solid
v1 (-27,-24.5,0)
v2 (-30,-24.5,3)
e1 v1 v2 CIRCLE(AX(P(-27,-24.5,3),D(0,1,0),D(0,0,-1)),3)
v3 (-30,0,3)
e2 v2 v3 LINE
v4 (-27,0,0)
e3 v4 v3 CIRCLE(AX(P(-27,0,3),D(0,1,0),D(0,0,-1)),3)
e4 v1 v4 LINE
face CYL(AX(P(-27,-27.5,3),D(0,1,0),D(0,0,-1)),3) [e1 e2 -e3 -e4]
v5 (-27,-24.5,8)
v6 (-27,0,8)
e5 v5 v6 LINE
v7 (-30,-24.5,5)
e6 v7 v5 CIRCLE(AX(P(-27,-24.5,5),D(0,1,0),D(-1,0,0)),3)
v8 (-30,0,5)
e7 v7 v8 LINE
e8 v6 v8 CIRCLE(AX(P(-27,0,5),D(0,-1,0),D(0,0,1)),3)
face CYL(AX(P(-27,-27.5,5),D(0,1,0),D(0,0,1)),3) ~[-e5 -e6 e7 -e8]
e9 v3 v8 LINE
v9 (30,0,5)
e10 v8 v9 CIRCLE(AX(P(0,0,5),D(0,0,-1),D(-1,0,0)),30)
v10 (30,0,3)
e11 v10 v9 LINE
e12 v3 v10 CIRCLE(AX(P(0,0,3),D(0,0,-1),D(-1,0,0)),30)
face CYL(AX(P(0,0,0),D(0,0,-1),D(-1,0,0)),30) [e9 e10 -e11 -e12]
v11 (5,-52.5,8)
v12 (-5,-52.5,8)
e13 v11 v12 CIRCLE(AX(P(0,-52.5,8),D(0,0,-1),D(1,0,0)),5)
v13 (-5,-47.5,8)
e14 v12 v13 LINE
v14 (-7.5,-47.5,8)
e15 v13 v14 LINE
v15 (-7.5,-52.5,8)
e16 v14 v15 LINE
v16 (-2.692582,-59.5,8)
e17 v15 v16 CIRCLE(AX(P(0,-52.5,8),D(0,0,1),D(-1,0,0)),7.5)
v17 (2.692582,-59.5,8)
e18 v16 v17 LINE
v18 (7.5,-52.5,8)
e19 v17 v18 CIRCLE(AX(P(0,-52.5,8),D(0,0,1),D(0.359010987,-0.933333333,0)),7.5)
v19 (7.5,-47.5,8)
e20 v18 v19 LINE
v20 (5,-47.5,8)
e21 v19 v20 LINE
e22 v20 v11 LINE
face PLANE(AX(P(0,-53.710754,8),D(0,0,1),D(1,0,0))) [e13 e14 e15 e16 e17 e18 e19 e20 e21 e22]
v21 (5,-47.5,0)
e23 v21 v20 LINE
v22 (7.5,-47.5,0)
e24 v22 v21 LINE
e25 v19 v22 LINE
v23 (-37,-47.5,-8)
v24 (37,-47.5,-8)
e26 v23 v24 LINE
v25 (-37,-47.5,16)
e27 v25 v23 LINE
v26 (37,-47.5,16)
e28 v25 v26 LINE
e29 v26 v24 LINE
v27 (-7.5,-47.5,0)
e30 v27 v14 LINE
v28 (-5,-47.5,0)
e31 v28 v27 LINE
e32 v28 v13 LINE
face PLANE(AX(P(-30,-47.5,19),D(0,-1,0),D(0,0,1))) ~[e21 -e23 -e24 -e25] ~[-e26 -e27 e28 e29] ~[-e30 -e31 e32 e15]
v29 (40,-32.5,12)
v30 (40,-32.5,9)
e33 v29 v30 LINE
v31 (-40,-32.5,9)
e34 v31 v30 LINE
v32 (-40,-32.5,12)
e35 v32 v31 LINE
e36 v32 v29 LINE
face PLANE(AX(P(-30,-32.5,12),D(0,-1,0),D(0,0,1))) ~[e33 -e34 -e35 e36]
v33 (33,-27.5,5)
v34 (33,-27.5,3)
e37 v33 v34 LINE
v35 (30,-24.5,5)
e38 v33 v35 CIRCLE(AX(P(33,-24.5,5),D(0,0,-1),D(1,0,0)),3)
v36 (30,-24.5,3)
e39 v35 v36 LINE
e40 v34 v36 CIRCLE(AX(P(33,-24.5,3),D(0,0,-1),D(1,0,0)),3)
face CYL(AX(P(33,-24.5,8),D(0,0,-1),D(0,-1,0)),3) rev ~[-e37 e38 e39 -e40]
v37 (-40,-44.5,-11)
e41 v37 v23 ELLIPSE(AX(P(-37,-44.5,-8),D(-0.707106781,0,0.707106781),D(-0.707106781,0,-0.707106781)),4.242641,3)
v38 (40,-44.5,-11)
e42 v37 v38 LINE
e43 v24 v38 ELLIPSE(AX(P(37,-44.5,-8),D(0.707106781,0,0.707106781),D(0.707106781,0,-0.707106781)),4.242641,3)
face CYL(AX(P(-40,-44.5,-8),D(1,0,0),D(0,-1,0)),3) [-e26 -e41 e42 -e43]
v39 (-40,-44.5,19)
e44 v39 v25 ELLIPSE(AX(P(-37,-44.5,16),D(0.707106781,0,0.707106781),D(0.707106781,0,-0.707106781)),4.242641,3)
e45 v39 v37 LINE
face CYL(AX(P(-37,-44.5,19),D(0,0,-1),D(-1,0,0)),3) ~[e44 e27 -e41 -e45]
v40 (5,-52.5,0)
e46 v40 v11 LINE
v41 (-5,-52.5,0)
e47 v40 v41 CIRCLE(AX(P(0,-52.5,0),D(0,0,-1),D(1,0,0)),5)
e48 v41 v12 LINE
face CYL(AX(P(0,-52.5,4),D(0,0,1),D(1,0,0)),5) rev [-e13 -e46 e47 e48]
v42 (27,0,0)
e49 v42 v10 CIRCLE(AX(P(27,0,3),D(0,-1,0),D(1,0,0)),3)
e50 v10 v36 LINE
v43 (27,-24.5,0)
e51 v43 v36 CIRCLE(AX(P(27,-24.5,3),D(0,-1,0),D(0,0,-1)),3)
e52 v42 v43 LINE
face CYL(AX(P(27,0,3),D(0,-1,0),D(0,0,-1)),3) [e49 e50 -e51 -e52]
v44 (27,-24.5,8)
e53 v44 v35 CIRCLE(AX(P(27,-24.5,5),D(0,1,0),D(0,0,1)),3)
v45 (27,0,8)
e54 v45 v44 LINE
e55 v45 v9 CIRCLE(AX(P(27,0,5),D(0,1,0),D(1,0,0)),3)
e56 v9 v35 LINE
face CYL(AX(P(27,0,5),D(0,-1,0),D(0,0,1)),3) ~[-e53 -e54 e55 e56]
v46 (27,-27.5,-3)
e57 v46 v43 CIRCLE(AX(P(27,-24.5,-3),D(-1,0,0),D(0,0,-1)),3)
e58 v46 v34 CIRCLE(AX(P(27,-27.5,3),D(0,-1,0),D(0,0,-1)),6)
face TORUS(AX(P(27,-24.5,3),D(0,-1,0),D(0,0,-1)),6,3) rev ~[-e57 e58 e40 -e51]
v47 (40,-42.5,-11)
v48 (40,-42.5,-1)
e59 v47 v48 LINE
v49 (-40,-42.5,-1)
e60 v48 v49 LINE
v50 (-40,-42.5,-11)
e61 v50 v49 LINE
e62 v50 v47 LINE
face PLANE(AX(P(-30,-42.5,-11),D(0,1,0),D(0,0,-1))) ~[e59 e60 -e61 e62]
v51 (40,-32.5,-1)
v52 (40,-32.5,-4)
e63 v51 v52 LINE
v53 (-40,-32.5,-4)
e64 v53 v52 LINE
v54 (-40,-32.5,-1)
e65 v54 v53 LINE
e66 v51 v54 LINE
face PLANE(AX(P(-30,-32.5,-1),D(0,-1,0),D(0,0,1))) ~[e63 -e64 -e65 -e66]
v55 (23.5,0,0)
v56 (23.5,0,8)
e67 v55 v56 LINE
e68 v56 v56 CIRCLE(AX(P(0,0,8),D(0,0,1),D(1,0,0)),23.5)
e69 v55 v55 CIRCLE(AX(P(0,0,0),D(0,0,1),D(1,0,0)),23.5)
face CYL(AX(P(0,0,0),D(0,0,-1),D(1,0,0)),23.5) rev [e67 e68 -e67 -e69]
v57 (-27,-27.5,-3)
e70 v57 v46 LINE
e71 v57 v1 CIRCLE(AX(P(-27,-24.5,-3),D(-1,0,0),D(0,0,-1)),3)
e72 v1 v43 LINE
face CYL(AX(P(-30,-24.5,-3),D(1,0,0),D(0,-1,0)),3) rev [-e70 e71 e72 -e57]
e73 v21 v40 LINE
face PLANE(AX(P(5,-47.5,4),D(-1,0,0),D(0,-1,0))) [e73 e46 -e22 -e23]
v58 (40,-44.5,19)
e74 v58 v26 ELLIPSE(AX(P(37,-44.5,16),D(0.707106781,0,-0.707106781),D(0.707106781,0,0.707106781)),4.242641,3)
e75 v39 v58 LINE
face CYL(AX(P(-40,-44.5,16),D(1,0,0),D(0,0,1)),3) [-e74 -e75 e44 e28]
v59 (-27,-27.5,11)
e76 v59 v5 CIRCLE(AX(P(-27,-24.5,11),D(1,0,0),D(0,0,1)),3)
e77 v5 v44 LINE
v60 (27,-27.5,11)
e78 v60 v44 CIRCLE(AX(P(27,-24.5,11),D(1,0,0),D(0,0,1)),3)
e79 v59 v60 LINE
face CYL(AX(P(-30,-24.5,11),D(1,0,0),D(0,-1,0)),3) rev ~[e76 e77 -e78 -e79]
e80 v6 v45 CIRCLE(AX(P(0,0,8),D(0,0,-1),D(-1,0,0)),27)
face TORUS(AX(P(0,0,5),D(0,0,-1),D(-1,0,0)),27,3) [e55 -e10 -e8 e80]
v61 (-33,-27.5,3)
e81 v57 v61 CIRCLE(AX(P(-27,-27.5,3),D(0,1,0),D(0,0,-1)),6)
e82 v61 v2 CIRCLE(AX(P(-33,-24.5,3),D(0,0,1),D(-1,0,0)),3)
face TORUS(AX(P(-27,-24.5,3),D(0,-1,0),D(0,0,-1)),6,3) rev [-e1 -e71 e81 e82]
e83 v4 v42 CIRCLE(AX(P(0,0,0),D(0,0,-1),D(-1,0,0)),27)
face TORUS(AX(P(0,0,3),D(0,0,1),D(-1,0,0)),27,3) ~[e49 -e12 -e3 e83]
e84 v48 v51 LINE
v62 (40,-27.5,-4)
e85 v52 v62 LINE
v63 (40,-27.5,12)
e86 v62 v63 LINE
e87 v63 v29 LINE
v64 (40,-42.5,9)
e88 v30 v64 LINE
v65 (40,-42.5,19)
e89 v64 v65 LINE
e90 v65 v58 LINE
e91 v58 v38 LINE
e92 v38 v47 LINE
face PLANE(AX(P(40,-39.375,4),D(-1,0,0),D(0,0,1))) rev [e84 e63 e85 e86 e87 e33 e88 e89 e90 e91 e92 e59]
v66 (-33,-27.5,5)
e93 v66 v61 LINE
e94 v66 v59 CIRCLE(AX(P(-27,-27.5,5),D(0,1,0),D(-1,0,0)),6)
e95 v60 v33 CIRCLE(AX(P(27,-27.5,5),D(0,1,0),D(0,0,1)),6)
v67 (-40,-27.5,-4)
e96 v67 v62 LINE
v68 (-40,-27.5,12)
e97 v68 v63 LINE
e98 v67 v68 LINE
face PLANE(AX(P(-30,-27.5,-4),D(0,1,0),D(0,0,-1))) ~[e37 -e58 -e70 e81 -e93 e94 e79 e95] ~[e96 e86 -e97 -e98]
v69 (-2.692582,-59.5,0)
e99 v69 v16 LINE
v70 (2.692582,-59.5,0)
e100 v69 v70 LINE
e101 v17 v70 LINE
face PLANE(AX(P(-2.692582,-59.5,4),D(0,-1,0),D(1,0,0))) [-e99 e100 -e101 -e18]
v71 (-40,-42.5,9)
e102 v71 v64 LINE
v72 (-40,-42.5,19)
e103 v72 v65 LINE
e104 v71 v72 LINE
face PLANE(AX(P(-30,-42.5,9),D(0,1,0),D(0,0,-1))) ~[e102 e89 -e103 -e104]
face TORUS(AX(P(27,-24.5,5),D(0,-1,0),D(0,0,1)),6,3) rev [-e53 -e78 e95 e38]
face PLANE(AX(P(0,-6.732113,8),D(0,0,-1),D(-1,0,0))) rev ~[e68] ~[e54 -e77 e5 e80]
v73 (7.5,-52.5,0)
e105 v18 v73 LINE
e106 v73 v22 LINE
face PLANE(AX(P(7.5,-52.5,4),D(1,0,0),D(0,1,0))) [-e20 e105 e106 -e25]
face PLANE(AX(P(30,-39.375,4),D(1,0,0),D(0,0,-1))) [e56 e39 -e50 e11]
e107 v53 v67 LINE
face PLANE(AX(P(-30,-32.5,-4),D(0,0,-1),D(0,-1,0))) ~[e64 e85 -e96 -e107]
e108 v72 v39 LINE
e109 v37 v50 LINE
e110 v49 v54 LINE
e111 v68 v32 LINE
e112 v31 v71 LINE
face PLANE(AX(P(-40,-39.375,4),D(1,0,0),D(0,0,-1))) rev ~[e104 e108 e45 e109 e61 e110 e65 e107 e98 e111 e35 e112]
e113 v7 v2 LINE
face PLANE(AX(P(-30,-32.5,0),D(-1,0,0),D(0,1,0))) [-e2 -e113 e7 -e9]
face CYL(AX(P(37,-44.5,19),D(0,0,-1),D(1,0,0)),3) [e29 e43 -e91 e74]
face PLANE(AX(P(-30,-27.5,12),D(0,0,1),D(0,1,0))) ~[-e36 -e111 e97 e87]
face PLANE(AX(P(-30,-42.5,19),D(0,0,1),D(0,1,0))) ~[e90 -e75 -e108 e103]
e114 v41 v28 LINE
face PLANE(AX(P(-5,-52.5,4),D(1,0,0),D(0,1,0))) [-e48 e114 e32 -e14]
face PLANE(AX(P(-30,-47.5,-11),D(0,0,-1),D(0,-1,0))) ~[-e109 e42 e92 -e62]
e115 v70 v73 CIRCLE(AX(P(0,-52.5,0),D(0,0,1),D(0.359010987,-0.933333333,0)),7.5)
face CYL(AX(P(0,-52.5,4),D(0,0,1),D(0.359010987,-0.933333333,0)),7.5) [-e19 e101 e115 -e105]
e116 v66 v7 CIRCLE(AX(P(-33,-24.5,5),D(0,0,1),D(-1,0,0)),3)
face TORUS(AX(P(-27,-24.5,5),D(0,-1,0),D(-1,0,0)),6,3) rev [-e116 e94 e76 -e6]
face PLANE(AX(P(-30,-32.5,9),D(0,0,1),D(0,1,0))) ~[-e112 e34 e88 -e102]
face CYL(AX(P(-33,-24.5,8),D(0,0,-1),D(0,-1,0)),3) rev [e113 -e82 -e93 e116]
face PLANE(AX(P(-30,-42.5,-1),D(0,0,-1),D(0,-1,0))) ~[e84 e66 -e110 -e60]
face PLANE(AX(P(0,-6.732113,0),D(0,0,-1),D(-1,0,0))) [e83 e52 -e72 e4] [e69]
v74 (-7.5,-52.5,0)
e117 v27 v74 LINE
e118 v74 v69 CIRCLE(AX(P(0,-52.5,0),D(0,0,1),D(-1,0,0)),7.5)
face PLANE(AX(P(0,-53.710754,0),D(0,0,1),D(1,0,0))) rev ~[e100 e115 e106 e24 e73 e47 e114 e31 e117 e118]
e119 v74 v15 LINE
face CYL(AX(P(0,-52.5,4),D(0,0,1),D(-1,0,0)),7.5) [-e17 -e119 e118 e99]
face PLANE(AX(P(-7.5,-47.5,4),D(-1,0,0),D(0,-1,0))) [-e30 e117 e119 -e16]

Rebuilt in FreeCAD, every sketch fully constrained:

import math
import FreeCAD as App
import Part
import Sketcher

V = App.Vector
Q = App.Units.Quantity


def edges_at(feature, points):
    """Names of the edges that pass closest to the given points."""
    edges = feature.Shape.Edges
    near = lambda p: min(range(len(edges)), key=lambda i: edges[i].distToShape(Part.Vertex(*p))[0])
    return sorted({f"Edge{near(p) + 1}" for p in points})

doc = App.newDocument("Part")
params = doc.addObject("Spreadsheet::Sheet", "Params")
for row, (alias, value) in enumerate([
    ("sketch1_diameter", "47 mm"),
    ("sketch1_radius", "30 mm"),
    ("sketch1_height", "32.5 mm"),
    ("pad1_length", "8 mm"),
    ("sketch2_width", "5 mm"),
    ("sketch2_width2", "10 mm"),
    ("sketch2_height", "3 mm"),
    ("sketch2_height2", "16 mm"),
    ("pad2_length", "70 mm"),
    ("fillet_radius", "3 mm"),
    ("fillet2_radius", "3 mm"),
    ("sketch3_radius", "5 mm"),
    ("sketch3_radius2", "7.5 mm"),
    ("sketch3_height", "5 mm"),
    ("pad3_length", "8 mm"),
], start=1):
    params.set(f"A{row}", alias)
    params.set(f"B{row}", "=" + value)
    params.setAlias(f"B{row}", alias)

body = doc.addObject("PartDesign::Body", "Body")

# Sketch on XY plane
sketch1 = body.newObject("Sketcher::SketchObject", "Sketch")
sketch1.AttachmentSupport = (doc.getObject("XY_Plane"), [""])
sketch1.MapMode = "FlatFace"
sketch1.addGeometry(Part.LineSegment(V(-30, -32, 0), V(30, -32, 0)), False)
sketch1.addGeometry(Part.LineSegment(V(30, -32, 0), V(30, 0, 0)), False)
sketch1.addGeometry(Part.ArcOfCircle(Part.Circle(V(0, 0, 0), V(0, 0, 1), 30), math.radians(0), math.radians(180)), False)
sketch1.addGeometry(Part.LineSegment(V(-30, 0, 0), V(-30, -32, 0)), False)
sketch1.addGeometry(Part.Circle(V(0, 0, 0), V(0, 0, 1), 24), False)
sketch1.addConstraint(Sketcher.Constraint("Coincident", 0, 2, 1, 1))
sketch1.addConstraint(Sketcher.Constraint("Tangent", 1, 2, 2, 1))
sketch1.addConstraint(Sketcher.Constraint("Tangent", 2, 2, 3, 1))
sketch1.addConstraint(Sketcher.Constraint("Coincident", 3, 2, 0, 1))
sketch1.addConstraint(Sketcher.Constraint("Horizontal", 0))
sketch1.addConstraint(Sketcher.Constraint("Vertical", 1))
sketch1.addConstraint(Sketcher.Constraint("Vertical", 3))
sketch1.addConstraint(Sketcher.Constraint("Coincident", 2, 3, -1, 1))
sketch1.addConstraint(Sketcher.Constraint("Coincident", 4, 3, -1, 1))
sketch1.addConstraint(Sketcher.Constraint("Diameter", 4, Q("47 mm")))
sketch1.addConstraint(Sketcher.Constraint("Radius", 2, Q("30 mm")))
sketch1.addConstraint(Sketcher.Constraint("DistanceY", 1, 1, 1, 2, Q("32.5 mm")))
sketch1.setExpression("Constraints[9]", "Params.sketch1_diameter")
sketch1.setExpression("Constraints[10]", "Params.sketch1_radius")
sketch1.setExpression("Constraints[11]", "Params.sketch1_height")
pad1 = body.newObject("PartDesign::Pad", "Pad")
pad1.Profile = sketch1
pad1.setExpression("Length", "Params.pad1_length")

# Sketch on YZ plane
sketch2 = body.newObject("Sketcher::SketchObject", "Sketch001")
sketch2.AttachmentSupport = (doc.getObject("YZ_Plane"), [""])
sketch2.MapMode = "FlatFace"
sketch2.AttachmentOffset = App.Placement(V(0, 0, 30), App.Rotation())
sketch2.addGeometry(Part.LineSegment(V(-32.5, -1, 0), V(-32.5, -4, 0)), False)
sketch2.addGeometry(Part.LineSegment(V(-32.5, -4, 0), V(-27.5, -4, 0)), False)
sketch2.addGeometry(Part.LineSegment(V(-27.5, -4, 0), V(-27.5, 12, 0)), False)
sketch2.addGeometry(Part.LineSegment(V(-27.5, 12, 0), V(-32.5, 12, 0)), False)
sketch2.addGeometry(Part.LineSegment(V(-32.5, 12, 0), V(-32.5, 9, 0)), False)
sketch2.addGeometry(Part.LineSegment(V(-32.5, 9, 0), V(-42.5, 9, 0)), False)
sketch2.addGeometry(Part.LineSegment(V(-42.5, 9, 0), V(-42.5, 19, 0)), False)
sketch2.addGeometry(Part.LineSegment(V(-42.5, 19, 0), V(-47.5, 19, 0)), False)
sketch2.addGeometry(Part.LineSegment(V(-47.5, 19, 0), V(-47.5, -11, 0)), False)
sketch2.addGeometry(Part.LineSegment(V(-47.5, -11, 0), V(-42.5, -11, 0)), False)
sketch2.addGeometry(Part.LineSegment(V(-42.5, -11, 0), V(-42.5, -1, 0)), False)
sketch2.addGeometry(Part.LineSegment(V(-42.5, -1, 0), V(-32.5, -1, 0)), False)
sketch2.addConstraint(Sketcher.Constraint("Coincident", 0, 2, 1, 1))
sketch2.addConstraint(Sketcher.Constraint("Coincident", 1, 2, 2, 1))
sketch2.addConstraint(Sketcher.Constraint("Coincident", 2, 2, 3, 1))
sketch2.addConstraint(Sketcher.Constraint("Coincident", 3, 2, 4, 1))
sketch2.addConstraint(Sketcher.Constraint("Coincident", 4, 2, 5, 1))
sketch2.addConstraint(Sketcher.Constraint("Coincident", 5, 2, 6, 1))
sketch2.addConstraint(Sketcher.Constraint("Coincident", 6, 2, 7, 1))
sketch2.addConstraint(Sketcher.Constraint("Coincident", 7, 2, 8, 1))
sketch2.addConstraint(Sketcher.Constraint("Coincident", 8, 2, 9, 1))
sketch2.addConstraint(Sketcher.Constraint("Coincident", 9, 2, 10, 1))
sketch2.addConstraint(Sketcher.Constraint("Coincident", 10, 2, 11, 1))
sketch2.addConstraint(Sketcher.Constraint("Coincident", 11, 2, 0, 1))
sketch2.addConstraint(Sketcher.Constraint("Vertical", 0))
sketch2.addConstraint(Sketcher.Constraint("Horizontal", 1))
sketch2.addConstraint(Sketcher.Constraint("Vertical", 2))
sketch2.addConstraint(Sketcher.Constraint("Horizontal", 3))
sketch2.addConstraint(Sketcher.Constraint("Vertical", 4))
sketch2.addConstraint(Sketcher.Constraint("Horizontal", 5))
sketch2.addConstraint(Sketcher.Constraint("Vertical", 6))
sketch2.addConstraint(Sketcher.Constraint("Horizontal", 7))
sketch2.addConstraint(Sketcher.Constraint("Vertical", 8))
sketch2.addConstraint(Sketcher.Constraint("Horizontal", 9))
sketch2.addConstraint(Sketcher.Constraint("Vertical", 10))
sketch2.addConstraint(Sketcher.Constraint("Horizontal", 11))
sketch2.addConstraint(Sketcher.Constraint("Vertical", 0, 2, 3, 2))
sketch2.addConstraint(Sketcher.Constraint("Vertical", 6, 2, 9, 2))
sketch2.addConstraint(Sketcher.Constraint("Equal", 3, 7))
sketch2.addConstraint(Sketcher.Constraint("Equal", 0, 4))
sketch2.addConstraint(Sketcher.Constraint("Equal", 11, 6))
sketch2.addConstraint(Sketcher.Constraint("Equal", 6, 10))
sketch2.addConstraint(Sketcher.Constraint("DistanceX", 1, 1, 1, 2, Q("5 mm")))
sketch2.addConstraint(Sketcher.Constraint("DistanceX", 5, 2, 5, 1, Q("10 mm")))
sketch2.addConstraint(Sketcher.Constraint("DistanceY", 0, 2, 0, 1, Q("3 mm")))
sketch2.addConstraint(Sketcher.Constraint("DistanceY", 2, 1, 2, 2, Q("16 mm")))
sketch2.addConstraint(Sketcher.Constraint("DistanceY", 0, 2, -1, 1, Q("4 mm")))
sketch2.addConstraint(Sketcher.Constraint("DistanceX", 0, 2, -1, 1, Q("32.5 mm")))
sketch2.setExpression("Constraints[30]", "Params.sketch2_width")
sketch2.setExpression("Constraints[31]", "Params.sketch2_width2")
sketch2.setExpression("Constraints[32]", "Params.sketch2_height")
sketch2.setExpression("Constraints[33]", "Params.sketch2_height2")
pad2 = body.newObject("PartDesign::Pad", "Pad001")
pad2.Profile = sketch2
pad2.setExpression("Length", "Params.pad2_length")
pad2.Reversed = True
doc.recompute()

mirrored = body.newObject("PartDesign::Mirrored", "Mirrored")
mirrored.Originals = [pad2]
mirrored.MirrorPlane = (doc.getObject("YZ_Plane"), [""])
body.Tip = mirrored
doc.recompute()

fillet = body.newObject("PartDesign::Fillet", "Fillet")
fillet.Base = (mirrored, edges_at(mirrored, [
    (30, -13.75, 0),
    (30, -13.75, 8),
    (0, -27.5, 0),
    (-30, -27.5, 4),
    (0, -27.5, 8),
    (0, 30, 8),
    (-30, -13.75, 0),
    (0, 30, 0),
    (30, -27.5, 4),
    (-30, -13.75, 8),
]))
fillet.setExpression("Radius", "Params.fillet_radius")
doc.recompute()

fillet2 = body.newObject("PartDesign::Fillet", "Fillet001")
fillet2.Base = (fillet, edges_at(fillet, [
    (-40, -47.5, 4),
    (0, -47.5, -11),
    (0, -47.5, 19),
    (40, -47.5, 4),
]))
fillet2.setExpression("Radius", "Params.fillet2_radius")

# Sketch on XY plane
sketch3 = body.newObject("Sketcher::SketchObject", "Sketch002")
sketch3.AttachmentSupport = (doc.getObject("XY_Plane"), [""])
sketch3.MapMode = "FlatFace"
sketch3.AttachmentOffset = App.Placement(V(0, 0, 4), App.Rotation())
sketch3.addGeometry(Part.LineSegment(V(7.5, -47.5, 0), V(5, -47.5, 0)), False)
sketch3.addGeometry(Part.LineSegment(V(5, -47.5, 0), V(5, -52.5, 0)), False)
sketch3.addGeometry(Part.ArcOfCircle(Part.Circle(V(0, -52.5, 0), V(0, 0, 1), 5), math.radians(180), math.radians(360)), False)
sketch3.addGeometry(Part.LineSegment(V(-5, -52.5, 0), V(-5, -47.5, 0)), False)
sketch3.addGeometry(Part.LineSegment(V(-5, -47.5, 0), V(-7.5, -47.5, 0)), False)
sketch3.addGeometry(Part.LineSegment(V(-7.5, -47.5, 0), V(-7.5, -52.5, 0)), False)
sketch3.addGeometry(Part.ArcOfCircle(Part.Circle(V(0, -52.5, 0), V(0, 0, 1), 7.5), math.radians(-180), math.radians(-111)), False)
sketch3.addGeometry(Part.LineSegment(V(-2.7, -59.5, 0), V(2.7, -59.5, 0)), False)
sketch3.addGeometry(Part.ArcOfCircle(Part.Circle(V(0, -52.5, 0), V(0, 0, 1), 7.5), math.radians(-69), math.radians(0)), False)
sketch3.addGeometry(Part.LineSegment(V(7.5, -52.5, 0), V(7.5, -47.5, 0)), False)
sketch3.addConstraint(Sketcher.Constraint("Coincident", 0, 2, 1, 1))
sketch3.addConstraint(Sketcher.Constraint("Tangent", 1, 2, 2, 2))
sketch3.addConstraint(Sketcher.Constraint("Tangent", 2, 1, 3, 1))
sketch3.addConstraint(Sketcher.Constraint("Coincident", 3, 2, 4, 1))
sketch3.addConstraint(Sketcher.Constraint("Coincident", 4, 2, 5, 1))
sketch3.addConstraint(Sketcher.Constraint("Tangent", 5, 2, 6, 1))
sketch3.addConstraint(Sketcher.Constraint("Coincident", 6, 2, 7, 1))
sketch3.addConstraint(Sketcher.Constraint("Coincident", 7, 2, 8, 1))
sketch3.addConstraint(Sketcher.Constraint("Tangent", 8, 2, 9, 1))
sketch3.addConstraint(Sketcher.Constraint("Coincident", 9, 2, 0, 1))
sketch3.addConstraint(Sketcher.Constraint("Horizontal", 0))
sketch3.addConstraint(Sketcher.Constraint("Vertical", 1))
sketch3.addConstraint(Sketcher.Constraint("Vertical", 3))
sketch3.addConstraint(Sketcher.Constraint("Horizontal", 4))
sketch3.addConstraint(Sketcher.Constraint("Vertical", 5))
sketch3.addConstraint(Sketcher.Constraint("Horizontal", 7))
sketch3.addConstraint(Sketcher.Constraint("Vertical", 9))
sketch3.addConstraint(Sketcher.Constraint("Coincident", 6, 3, 2, 3))
sketch3.addConstraint(Sketcher.Constraint("Coincident", 8, 3, 2, 3))
sketch3.addConstraint(Sketcher.Constraint("Equal", 6, 8))
sketch3.addConstraint(Sketcher.Constraint("Symmetric", 0, 2, 3, 2, -2))
sketch3.addConstraint(Sketcher.Constraint("Radius", 2, Q("5 mm")))
sketch3.addConstraint(Sketcher.Constraint("Radius", 6, Q("7.5 mm")))
sketch3.addConstraint(Sketcher.Constraint("DistanceY", 1, 2, 1, 1, Q("5 mm")))
sketch3.addConstraint(Sketcher.Constraint("DistanceY", 6, 2, 2, 1, Q("7 mm")))
sketch3.addConstraint(Sketcher.Constraint("DistanceY", 2, 3, -1, 1, Q("52.5 mm")))
sketch3.setExpression("Constraints[21]", "Params.sketch3_radius")
sketch3.setExpression("Constraints[22]", "Params.sketch3_radius2")
sketch3.setExpression("Constraints[23]", "Params.sketch3_height")
pad3 = body.newObject("PartDesign::Pad", "Pad002")
pad3.Profile = sketch3
pad3.setExpression("Length", "Params.pad3_length")
pad3.Midplane = True

doc.recompute()
